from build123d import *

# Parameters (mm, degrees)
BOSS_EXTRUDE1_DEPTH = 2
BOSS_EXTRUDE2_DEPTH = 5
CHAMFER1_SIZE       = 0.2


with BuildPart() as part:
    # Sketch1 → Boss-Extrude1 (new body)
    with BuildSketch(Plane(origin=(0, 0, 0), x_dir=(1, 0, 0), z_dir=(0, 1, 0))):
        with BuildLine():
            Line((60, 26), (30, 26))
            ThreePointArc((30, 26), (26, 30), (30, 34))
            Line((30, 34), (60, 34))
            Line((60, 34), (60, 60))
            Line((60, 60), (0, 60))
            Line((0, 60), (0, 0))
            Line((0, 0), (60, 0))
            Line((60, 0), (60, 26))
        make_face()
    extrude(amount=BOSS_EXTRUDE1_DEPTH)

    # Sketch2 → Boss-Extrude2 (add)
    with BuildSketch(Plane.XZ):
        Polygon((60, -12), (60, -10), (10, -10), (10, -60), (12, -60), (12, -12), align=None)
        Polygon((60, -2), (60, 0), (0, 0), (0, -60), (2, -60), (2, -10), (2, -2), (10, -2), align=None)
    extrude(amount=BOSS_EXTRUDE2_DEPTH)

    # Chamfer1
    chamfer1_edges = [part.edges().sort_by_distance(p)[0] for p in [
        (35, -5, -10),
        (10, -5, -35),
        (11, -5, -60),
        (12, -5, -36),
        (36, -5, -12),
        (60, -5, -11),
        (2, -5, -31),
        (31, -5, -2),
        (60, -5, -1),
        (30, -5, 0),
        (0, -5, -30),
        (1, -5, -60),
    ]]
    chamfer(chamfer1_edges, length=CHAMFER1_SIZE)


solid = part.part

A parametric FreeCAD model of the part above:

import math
import FreeCAD as App
import Part
import Sketcher

V = App.Vector
Q = App.Units.Quantity


def edges_at(feature, points):
    """Names of the edges that pass closest to the given points."""
    edges = feature.Shape.Edges
    near = lambda p: min(range(len(edges)), key=lambda i: edges[i].distToShape(Part.Vertex(*p))[0])
    return sorted({f"Edge{near(p) + 1}" for p in points})

doc = App.newDocument("Part")
body = doc.addObject("PartDesign::Body", "Body")

# Sketch on XZ plane
sketch1 = body.newObject("Sketcher::SketchObject", "Sketch")
sketch1.AttachmentSupport = (doc.getObject("XZ_Plane"), [""])
sketch1.MapMode = "FlatFace"
sketch1.addGeometry([
    Part.LineSegment(V(60, -26, 0), V(30, -26, 0)),  # 0
    Part.ArcOfCircle(Part.Circle(V(30, -30, 0), V(0, 0, 1), 4), math.radians(90), math.radians(270)),  # 1
    Part.LineSegment(V(30, -34, 0), V(60, -34, 0)),  # 2
    Part.LineSegment(V(60, -34, 0), V(60, -60, 0)),  # 3
    Part.LineSegment(V(60, -60, 0), V(0, -60, 0)),  # 4
    Part.LineSegment(V(0, -60, 0), V(0, 0, 0)),  # 5
    Part.LineSegment(V(0, 0, 0), V(60, 0, 0)),  # 6
    Part.LineSegment(V(60, 0, 0), V(60, -26, 0)),  # 7
], False)
sketch1.addConstraint([
    Sketcher.Constraint("Tangent", 0, 2, 1, 1),
    Sketcher.Constraint("Tangent", 1, 2, 2, 1),
    Sketcher.Constraint("Coincident", 2, 2, 3, 1),
    Sketcher.Constraint("Coincident", 3, 2, 4, 1),
    Sketcher.Constraint("Coincident", 4, 2, 5, 1),
    Sketcher.Constraint("Coincident", 5, 2, 6, 1),
    Sketcher.Constraint("Coincident", 6, 2, 7, 1),
    Sketcher.Constraint("Coincident", 7, 2, 0, 1),
    Sketcher.Constraint("Horizontal", 0),
    Sketcher.Constraint("Horizontal", 2),
    Sketcher.Constraint("Vertical", 3),
    Sketcher.Constraint("Horizontal", 4),
    Sketcher.Constraint("Vertical", 5),
    Sketcher.Constraint("Horizontal", 6),
    Sketcher.Constraint("Vertical", 7),
    Sketcher.Constraint("Coincident", 5, 2, -1, 1),
    Sketcher.Constraint("Vertical", 3, 2, 6, 2),
    Sketcher.Constraint("Equal", 6, 5),
    Sketcher.Constraint("Equal", 3, 7),
    Sketcher.Constraint("Radius", 1, Q("4 mm")),
    Sketcher.Constraint("DistanceX", 0, 2, 0, 1, Q("30 mm")),
    Sketcher.Constraint("DistanceX", 4, 2, 4, 1, Q("60 mm")),
])
pad1 = body.newObject("PartDesign::Pad", "Pad")
pad1.Profile = sketch1
pad1.Length = 2
pad1.Reversed = True

# Sketch on XZ plane
sketch2 = body.newObject("Sketcher::SketchObject", "Sketch001")
sketch2.AttachmentSupport = (doc.getObject("XZ_Plane"), [""])
sketch2.MapMode = "FlatFace"
sketch2.addGeometry([
    Part.LineSegment(V(60, -12, 0), V(60, -10, 0)),  # 0
    Part.LineSegment(V(60, -10, 0), V(10, -10, 0)),  # 1
    Part.LineSegment(V(10, -10, 0), V(10, -60, 0)),  # 2
    Part.LineSegment(V(10, -60, 0), V(12, -60, 0)),  # 3
    Part.LineSegment(V(12, -60, 0), V(12, -12, 0)),  # 4
    Part.LineSegment(V(12, -12, 0), V(60, -12, 0)),  # 5
    Part.LineSegment(V(60, -2, 0), V(60, 0, 0)),  # 6
    Part.LineSegment(V(60, 0, 0), V(0, 0, 0)),  # 7
    Part.LineSegment(V(0, 0, 0), V(0, -60, 0)),  # 8
    Part.LineSegment(V(0, -60, 0), V(2, -60, 0)),  # 9
    Part.LineSegment(V(2, -60, 0), V(2, -2, 0)),  # 10
    Part.LineSegment(V(2, -2, 0), V(60, -2, 0)),  # 11
], False)
sketch2.addConstraint([
    Sketcher.Constraint("Coincident", 0, 2, 1, 1),
    Sketcher.Constraint("Coincident", 1, 2, 2, 1),
    Sketcher.Constraint("Coincident", 2, 2, 3, 1),
    Sketcher.Constraint("Coincident", 3, 2, 4, 1),
    Sketcher.Constraint("Coincident", 4, 2, 5, 1),
    Sketcher.Constraint("Coincident", 5, 2, 0, 1),
    Sketcher.Constraint("Coincident", 6, 2, 7, 1),
    Sketcher.Constraint("Coincident", 7, 2, 8, 1),
    Sketcher.Constraint("Coincident", 8, 2, 9, 1),
    Sketcher.Constraint("Coincident", 9, 2, 10, 1),
    Sketcher.Constraint("Coincident", 10, 2, 11, 1),
    Sketcher.Constraint("Coincident", 11, 2, 6, 1),
    Sketcher.Constraint("Vertical", 0),
    Sketcher.Constraint("Horizontal", 1),
    Sketcher.Constraint("Vertical", 2),
    Sketcher.Constraint("Horizontal", 3),
    Sketcher.Constraint("Vertical", 4),
    Sketcher.Constraint("Horizontal", 5),
    Sketcher.Constraint("Vertical", 6),
    Sketcher.Constraint("Horizontal", 7),
    Sketcher.Constraint("Vertical", 8),
    Sketcher.Constraint("Horizontal", 9),
    Sketcher.Constraint("Vertical", 10),
    Sketcher.Constraint("Horizontal", 11),
    Sketcher.Constraint("Coincident", 7, 2, -1, 1),
    Sketcher.Constraint("Horizontal", 3, 2, 8, 2),
    Sketcher.Constraint("Vertical", 5, 2, 6, 2),
    Sketcher.Constraint("Equal", 3, 9),
    Sketcher.Constraint("Equal", 9, 0),
    Sketcher.Constraint("Equal", 1, 2),
    Sketcher.Constraint("Equal", 0, 6),
    Sketcher.Constraint("Equal", 7, 8),
    Sketcher.Constraint("DistanceX", 1, 2, 1, 1, Q("50 mm")),
    Sketcher.Constraint("DistanceX", 3, 1, 3, 2, Q("2 mm")),
    Sketcher.Constraint("DistanceX", 7, 2, 7, 1, Q("60 mm")),
])
pad2 = body.newObject("PartDesign::Pad", "Pad001")
pad2.Profile = sketch2
pad2.Length = 5
doc.recompute()

chamfer = body.newObject("PartDesign::Chamfer", "Chamfer")
chamfer.Base = (pad2, edges_at(pad2, [
    (35, -5, -10),
    (10, -5, -35),
    (11, -5, -60),
    (12, -5, -36),
    (36, -5, -12),
    (60, -5, -11),
    (2, -5, -31),
    (31, -5, -2),
    (60, -5, -1),
    (30, -5, 0),
    (0, -5, -30),
    (1, -5, -60),
]))
chamfer.Size = 0.2

doc.recompute()
